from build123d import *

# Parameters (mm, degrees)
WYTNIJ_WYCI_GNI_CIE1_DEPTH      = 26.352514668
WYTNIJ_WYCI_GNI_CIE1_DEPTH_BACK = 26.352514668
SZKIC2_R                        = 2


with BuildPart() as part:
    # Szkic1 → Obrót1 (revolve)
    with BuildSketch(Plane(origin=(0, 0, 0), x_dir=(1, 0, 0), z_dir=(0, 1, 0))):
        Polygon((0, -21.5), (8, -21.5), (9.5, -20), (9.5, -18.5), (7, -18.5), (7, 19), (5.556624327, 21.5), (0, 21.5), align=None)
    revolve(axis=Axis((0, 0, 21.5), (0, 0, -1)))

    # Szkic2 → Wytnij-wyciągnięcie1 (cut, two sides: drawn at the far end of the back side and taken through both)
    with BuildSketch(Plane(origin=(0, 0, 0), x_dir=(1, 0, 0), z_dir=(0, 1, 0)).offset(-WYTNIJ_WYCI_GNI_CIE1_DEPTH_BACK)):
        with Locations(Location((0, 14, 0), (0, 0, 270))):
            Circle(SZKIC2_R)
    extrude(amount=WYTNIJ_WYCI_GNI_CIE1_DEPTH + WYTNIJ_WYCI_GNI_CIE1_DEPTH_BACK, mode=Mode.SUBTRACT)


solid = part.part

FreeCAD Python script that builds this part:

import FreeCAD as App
import Part
import Sketcher
Q = App.Units.Quantity

doc = App.newDocument("Part")
body = doc.addObject("PartDesign::Body", "Body")

# Sketch on XZ plane
sketch1 = body.newObject("Sketcher::SketchObject", "Sketch")
sketch1.AttachmentSupport = (doc.getObject("XZ_Plane"), [""])
sketch1.MapMode = "FlatFace"
sketch1.addGeometry(Part.LineSegment(App.Vector(0, 21.5, 0), App.Vector(8, 21.5, 0)), False)
sketch1.addGeometry(Part.LineSegment(App.Vector(8, 21.5, 0), App.Vector(9.5, 20, 0)), False)
sketch1.addGeometry(Part.LineSegment(App.Vector(9.5, 20, 0), App.Vector(9.5, 18.5, 0)), False)
sketch1.addGeometry(Part.LineSegment(App.Vector(9.5, 18.5, 0), App.Vector(7, 18.5, 0)), False)
sketch1.addGeometry(Part.LineSegment(App.Vector(7, 18.5, 0), App.Vector(7, -19, 0)), False)
sketch1.addGeometry(Part.LineSegment(App.Vector(7, -19, 0), App.Vector(5.556624, -21.5, 0)), False)
sketch1.addGeometry(Part.LineSegment(App.Vector(5.556624, -21.5, 0), App.Vector(0, -21.5, 0)), False)
sketch1.addGeometry(Part.LineSegment(App.Vector(0, -21.5, 0), App.Vector(0, 21.5, 0)), False)
sketch1.addConstraint(Sketcher.Constraint("Coincident", 0, 2, 1, 1))
sketch1.addConstraint(Sketcher.Constraint("Coincident", 1, 2, 2, 1))
sketch1.addConstraint(Sketcher.Constraint("Coincident", 2, 2, 3, 1))
sketch1.addConstraint(Sketcher.Constraint("Coincident", 3, 2, 4, 1))
sketch1.addConstraint(Sketcher.Constraint("Coincident", 4, 2, 5, 1))
sketch1.addConstraint(Sketcher.Constraint("Coincident", 5, 2, 6, 1))
sketch1.addConstraint(Sketcher.Constraint("Coincident", 6, 2, 7, 1))
sketch1.addConstraint(Sketcher.Constraint("Coincident", 7, 2, 0, 1))
sketch1.addConstraint(Sketcher.Constraint("Horizontal", 0))
sketch1.addConstraint(Sketcher.Constraint("Vertical", 2))
sketch1.addConstraint(Sketcher.Constraint("Horizontal", 3))
sketch1.addConstraint(Sketcher.Constraint("Vertical", 4))
sketch1.addConstraint(Sketcher.Constraint("Horizontal", 6))
sketch1.addConstraint(Sketcher.Constraint("Vertical", 7))
sketch1.addConstraint(Sketcher.Constraint("Symmetric", 6, 2, 7, 2, -1, 1))
sketch1.addConstraint(Sketcher.Constraint("DistanceX", 0, 1, 0, 2, Q("8 mm")))
sketch1.addConstraint(Sketcher.Constraint("DistanceY", 7, 1, 7, 2, Q("43 mm")))
sketch1.addConstraint(Sketcher.Constraint("Angle", 1, Q("-45 deg")))
sketch1.addConstraint(Sketcher.Constraint("Angle", 5, Q("-120 deg")))
sketch1.addConstraint(Sketcher.Constraint("DistanceX", 3, 2, 3, 1, Q("2.5 mm")))
sketch1.addConstraint(Sketcher.Constraint("DistanceY", 2, 2, 2, 1, Q("1.5 mm")))
sketch1.addConstraint(Sketcher.Constraint("DistanceY", 4, 2, 4, 1, Q("37.5 mm")))
sketch1.addConstraint(Sketcher.Constraint("DistanceY", -1, 1, 1, 2, Q("20 mm")))
revolution = body.newObject("PartDesign::Revolution", "Revolution")
revolution.Profile = sketch1
revolution.ReferenceAxis = (sketch1, ["V_Axis"])
revolution.Angle = 360

# Sketch on XZ plane
sketch2 = body.newObject("Sketcher::SketchObject", "Sketch001")
sketch2.AttachmentSupport = (doc.getObject("XZ_Plane"), [""])
sketch2.MapMode = "FlatFace"
sketch2.addGeometry(Part.Circle(App.Vector(0, -14, 0), App.Vector(0, 0, 1), 2), False)
sketch2.addConstraint(Sketcher.Constraint("PointOnObject", 0, 3, -2))
sketch2.addConstraint(Sketcher.Constraint("Diameter", 0, Q("4 mm")))
sketch2.addConstraint(Sketcher.Constraint("DistanceY", 0, 3, -1, 1, Q("14 mm")))
pocket1 = body.newObject("PartDesign::Pocket", "Pocket")
pocket1.Profile = sketch2
pocket1.Type = "ThroughAll"
pocket1.Midplane = True

doc.recompute()
